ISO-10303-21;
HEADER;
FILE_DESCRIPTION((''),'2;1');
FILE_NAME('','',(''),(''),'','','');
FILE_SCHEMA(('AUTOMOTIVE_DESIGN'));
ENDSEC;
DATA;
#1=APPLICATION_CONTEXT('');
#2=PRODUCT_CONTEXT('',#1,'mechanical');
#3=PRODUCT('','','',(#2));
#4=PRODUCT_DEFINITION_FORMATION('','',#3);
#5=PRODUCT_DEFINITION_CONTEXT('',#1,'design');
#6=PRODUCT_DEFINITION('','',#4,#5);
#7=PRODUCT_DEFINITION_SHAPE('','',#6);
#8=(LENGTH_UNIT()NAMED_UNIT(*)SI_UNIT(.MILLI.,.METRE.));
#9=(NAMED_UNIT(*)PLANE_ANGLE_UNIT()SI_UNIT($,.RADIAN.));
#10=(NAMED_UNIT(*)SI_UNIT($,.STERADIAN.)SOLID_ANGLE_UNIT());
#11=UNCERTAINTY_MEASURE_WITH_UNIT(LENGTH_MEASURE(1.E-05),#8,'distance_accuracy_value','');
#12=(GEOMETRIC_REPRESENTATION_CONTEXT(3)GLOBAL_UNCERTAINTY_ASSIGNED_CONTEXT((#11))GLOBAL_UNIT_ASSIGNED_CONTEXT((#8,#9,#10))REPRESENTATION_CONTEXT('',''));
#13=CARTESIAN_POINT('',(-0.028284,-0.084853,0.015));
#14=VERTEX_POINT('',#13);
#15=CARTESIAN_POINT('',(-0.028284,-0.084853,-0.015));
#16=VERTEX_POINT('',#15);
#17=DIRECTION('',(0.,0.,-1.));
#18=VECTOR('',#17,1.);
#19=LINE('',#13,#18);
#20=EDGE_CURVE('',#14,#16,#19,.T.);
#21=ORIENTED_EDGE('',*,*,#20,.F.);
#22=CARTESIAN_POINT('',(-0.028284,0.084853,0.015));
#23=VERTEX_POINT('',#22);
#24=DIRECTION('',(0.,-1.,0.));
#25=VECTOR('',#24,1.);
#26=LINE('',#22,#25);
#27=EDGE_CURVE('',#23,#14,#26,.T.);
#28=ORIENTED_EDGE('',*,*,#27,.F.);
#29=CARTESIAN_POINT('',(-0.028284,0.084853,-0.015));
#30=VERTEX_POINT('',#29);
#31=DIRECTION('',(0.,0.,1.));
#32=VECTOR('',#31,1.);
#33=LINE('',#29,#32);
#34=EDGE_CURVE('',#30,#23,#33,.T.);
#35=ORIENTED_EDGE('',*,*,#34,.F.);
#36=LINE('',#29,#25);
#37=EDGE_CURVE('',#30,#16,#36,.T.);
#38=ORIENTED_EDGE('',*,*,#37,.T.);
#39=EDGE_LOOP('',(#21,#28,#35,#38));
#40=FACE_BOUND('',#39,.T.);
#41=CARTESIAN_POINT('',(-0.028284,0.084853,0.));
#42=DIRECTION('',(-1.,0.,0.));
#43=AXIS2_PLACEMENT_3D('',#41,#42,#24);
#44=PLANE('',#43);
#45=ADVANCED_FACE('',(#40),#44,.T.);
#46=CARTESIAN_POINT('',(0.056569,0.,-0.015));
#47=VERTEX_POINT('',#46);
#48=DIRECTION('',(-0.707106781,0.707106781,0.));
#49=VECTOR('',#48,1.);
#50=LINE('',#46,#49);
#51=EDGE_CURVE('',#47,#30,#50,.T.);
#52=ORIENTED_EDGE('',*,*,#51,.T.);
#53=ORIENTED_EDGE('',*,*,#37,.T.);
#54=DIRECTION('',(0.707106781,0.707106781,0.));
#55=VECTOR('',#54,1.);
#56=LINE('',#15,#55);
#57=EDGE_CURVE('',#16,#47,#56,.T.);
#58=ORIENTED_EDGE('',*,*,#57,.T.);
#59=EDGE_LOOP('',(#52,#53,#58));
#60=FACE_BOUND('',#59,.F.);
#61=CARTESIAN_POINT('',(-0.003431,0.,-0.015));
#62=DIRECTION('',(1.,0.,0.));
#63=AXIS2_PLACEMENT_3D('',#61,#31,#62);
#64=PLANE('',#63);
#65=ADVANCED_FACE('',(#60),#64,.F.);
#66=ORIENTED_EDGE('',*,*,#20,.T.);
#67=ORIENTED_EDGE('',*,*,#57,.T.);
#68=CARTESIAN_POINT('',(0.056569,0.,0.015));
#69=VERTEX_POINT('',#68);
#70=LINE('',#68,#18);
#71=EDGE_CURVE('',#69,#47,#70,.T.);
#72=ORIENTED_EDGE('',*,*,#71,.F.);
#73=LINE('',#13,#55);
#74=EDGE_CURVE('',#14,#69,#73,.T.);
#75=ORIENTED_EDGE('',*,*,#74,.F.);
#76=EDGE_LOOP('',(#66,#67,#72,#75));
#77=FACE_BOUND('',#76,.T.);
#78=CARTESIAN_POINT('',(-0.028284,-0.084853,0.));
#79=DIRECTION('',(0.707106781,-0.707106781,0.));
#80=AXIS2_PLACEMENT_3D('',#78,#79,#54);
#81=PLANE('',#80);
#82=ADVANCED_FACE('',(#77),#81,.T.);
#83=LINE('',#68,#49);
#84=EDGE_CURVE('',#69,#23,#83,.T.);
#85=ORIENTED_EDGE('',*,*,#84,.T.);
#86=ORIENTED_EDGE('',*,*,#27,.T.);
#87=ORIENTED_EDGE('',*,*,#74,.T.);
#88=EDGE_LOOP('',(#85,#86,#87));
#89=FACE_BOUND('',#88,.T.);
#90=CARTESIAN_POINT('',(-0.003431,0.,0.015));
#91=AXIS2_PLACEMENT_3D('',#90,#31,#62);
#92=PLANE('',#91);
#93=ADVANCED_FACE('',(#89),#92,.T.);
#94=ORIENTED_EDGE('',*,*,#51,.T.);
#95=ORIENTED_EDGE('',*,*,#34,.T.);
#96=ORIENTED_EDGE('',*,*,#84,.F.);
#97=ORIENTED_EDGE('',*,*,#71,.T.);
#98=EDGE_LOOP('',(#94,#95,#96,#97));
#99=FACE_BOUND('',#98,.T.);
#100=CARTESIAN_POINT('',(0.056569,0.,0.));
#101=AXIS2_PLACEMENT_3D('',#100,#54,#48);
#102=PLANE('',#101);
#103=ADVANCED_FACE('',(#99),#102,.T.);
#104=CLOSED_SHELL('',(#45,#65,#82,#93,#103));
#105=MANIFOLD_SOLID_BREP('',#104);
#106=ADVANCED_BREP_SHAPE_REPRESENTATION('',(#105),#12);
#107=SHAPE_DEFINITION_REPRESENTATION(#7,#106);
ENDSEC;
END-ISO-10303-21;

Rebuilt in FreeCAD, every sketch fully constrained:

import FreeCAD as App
import Part
import Sketcher
from FreeCAD import Vector
Q = App.Units.Quantity


def add_polygon(sketch, points):
    """Adds a closed chain of lines whose ends are joined by coincident constraints."""
    first, n = sketch.GeometryCount, len(points)
    for a, b in zip(points, points[1:] + points[:1]):
        sketch.addGeometry(Part.LineSegment(App.Vector(*a, 0), App.Vector(*b, 0)), False)
    for i in range(n):
        sketch.addConstraint(Sketcher.Constraint("Coincident", first + i, 2, first + (i + 1) % n, 1))

doc = App.newDocument("Part")
body = doc.addObject("PartDesign::Body", "Body")

# Sketch on XY plane
sketch1 = body.newObject("Sketcher::SketchObject", "Sketch")
sketch1.AttachmentSupport = (doc.getObject("XY_Plane"), [""])
sketch1.MapMode = "FlatFace"
add_polygon(sketch1, [(0.06, 0), (-0.03, 0.08), (-0.03, -0.08)])  # lines 0-2
sketch1.addConstraint([
    Sketcher.Constraint("Vertical", 1),
    Sketcher.Constraint("PointOnObject", 2, 2, -1),
    Sketcher.Constraint("Perpendicular", 0, 2),
    Sketcher.Constraint("Equal", 0, 2),
    Sketcher.Constraint("Distance", 0, Q("0.12 mm")),
    Sketcher.Constraint("DistanceX", -1, 1, 2, 2, Q("0.056569 mm")),
])
pad1 = body.newObject("PartDesign::Pad", "Pad")
pad1.Profile = sketch1
pad1.Length = 0.03
pad1.Midplane = True

doc.recompute()
